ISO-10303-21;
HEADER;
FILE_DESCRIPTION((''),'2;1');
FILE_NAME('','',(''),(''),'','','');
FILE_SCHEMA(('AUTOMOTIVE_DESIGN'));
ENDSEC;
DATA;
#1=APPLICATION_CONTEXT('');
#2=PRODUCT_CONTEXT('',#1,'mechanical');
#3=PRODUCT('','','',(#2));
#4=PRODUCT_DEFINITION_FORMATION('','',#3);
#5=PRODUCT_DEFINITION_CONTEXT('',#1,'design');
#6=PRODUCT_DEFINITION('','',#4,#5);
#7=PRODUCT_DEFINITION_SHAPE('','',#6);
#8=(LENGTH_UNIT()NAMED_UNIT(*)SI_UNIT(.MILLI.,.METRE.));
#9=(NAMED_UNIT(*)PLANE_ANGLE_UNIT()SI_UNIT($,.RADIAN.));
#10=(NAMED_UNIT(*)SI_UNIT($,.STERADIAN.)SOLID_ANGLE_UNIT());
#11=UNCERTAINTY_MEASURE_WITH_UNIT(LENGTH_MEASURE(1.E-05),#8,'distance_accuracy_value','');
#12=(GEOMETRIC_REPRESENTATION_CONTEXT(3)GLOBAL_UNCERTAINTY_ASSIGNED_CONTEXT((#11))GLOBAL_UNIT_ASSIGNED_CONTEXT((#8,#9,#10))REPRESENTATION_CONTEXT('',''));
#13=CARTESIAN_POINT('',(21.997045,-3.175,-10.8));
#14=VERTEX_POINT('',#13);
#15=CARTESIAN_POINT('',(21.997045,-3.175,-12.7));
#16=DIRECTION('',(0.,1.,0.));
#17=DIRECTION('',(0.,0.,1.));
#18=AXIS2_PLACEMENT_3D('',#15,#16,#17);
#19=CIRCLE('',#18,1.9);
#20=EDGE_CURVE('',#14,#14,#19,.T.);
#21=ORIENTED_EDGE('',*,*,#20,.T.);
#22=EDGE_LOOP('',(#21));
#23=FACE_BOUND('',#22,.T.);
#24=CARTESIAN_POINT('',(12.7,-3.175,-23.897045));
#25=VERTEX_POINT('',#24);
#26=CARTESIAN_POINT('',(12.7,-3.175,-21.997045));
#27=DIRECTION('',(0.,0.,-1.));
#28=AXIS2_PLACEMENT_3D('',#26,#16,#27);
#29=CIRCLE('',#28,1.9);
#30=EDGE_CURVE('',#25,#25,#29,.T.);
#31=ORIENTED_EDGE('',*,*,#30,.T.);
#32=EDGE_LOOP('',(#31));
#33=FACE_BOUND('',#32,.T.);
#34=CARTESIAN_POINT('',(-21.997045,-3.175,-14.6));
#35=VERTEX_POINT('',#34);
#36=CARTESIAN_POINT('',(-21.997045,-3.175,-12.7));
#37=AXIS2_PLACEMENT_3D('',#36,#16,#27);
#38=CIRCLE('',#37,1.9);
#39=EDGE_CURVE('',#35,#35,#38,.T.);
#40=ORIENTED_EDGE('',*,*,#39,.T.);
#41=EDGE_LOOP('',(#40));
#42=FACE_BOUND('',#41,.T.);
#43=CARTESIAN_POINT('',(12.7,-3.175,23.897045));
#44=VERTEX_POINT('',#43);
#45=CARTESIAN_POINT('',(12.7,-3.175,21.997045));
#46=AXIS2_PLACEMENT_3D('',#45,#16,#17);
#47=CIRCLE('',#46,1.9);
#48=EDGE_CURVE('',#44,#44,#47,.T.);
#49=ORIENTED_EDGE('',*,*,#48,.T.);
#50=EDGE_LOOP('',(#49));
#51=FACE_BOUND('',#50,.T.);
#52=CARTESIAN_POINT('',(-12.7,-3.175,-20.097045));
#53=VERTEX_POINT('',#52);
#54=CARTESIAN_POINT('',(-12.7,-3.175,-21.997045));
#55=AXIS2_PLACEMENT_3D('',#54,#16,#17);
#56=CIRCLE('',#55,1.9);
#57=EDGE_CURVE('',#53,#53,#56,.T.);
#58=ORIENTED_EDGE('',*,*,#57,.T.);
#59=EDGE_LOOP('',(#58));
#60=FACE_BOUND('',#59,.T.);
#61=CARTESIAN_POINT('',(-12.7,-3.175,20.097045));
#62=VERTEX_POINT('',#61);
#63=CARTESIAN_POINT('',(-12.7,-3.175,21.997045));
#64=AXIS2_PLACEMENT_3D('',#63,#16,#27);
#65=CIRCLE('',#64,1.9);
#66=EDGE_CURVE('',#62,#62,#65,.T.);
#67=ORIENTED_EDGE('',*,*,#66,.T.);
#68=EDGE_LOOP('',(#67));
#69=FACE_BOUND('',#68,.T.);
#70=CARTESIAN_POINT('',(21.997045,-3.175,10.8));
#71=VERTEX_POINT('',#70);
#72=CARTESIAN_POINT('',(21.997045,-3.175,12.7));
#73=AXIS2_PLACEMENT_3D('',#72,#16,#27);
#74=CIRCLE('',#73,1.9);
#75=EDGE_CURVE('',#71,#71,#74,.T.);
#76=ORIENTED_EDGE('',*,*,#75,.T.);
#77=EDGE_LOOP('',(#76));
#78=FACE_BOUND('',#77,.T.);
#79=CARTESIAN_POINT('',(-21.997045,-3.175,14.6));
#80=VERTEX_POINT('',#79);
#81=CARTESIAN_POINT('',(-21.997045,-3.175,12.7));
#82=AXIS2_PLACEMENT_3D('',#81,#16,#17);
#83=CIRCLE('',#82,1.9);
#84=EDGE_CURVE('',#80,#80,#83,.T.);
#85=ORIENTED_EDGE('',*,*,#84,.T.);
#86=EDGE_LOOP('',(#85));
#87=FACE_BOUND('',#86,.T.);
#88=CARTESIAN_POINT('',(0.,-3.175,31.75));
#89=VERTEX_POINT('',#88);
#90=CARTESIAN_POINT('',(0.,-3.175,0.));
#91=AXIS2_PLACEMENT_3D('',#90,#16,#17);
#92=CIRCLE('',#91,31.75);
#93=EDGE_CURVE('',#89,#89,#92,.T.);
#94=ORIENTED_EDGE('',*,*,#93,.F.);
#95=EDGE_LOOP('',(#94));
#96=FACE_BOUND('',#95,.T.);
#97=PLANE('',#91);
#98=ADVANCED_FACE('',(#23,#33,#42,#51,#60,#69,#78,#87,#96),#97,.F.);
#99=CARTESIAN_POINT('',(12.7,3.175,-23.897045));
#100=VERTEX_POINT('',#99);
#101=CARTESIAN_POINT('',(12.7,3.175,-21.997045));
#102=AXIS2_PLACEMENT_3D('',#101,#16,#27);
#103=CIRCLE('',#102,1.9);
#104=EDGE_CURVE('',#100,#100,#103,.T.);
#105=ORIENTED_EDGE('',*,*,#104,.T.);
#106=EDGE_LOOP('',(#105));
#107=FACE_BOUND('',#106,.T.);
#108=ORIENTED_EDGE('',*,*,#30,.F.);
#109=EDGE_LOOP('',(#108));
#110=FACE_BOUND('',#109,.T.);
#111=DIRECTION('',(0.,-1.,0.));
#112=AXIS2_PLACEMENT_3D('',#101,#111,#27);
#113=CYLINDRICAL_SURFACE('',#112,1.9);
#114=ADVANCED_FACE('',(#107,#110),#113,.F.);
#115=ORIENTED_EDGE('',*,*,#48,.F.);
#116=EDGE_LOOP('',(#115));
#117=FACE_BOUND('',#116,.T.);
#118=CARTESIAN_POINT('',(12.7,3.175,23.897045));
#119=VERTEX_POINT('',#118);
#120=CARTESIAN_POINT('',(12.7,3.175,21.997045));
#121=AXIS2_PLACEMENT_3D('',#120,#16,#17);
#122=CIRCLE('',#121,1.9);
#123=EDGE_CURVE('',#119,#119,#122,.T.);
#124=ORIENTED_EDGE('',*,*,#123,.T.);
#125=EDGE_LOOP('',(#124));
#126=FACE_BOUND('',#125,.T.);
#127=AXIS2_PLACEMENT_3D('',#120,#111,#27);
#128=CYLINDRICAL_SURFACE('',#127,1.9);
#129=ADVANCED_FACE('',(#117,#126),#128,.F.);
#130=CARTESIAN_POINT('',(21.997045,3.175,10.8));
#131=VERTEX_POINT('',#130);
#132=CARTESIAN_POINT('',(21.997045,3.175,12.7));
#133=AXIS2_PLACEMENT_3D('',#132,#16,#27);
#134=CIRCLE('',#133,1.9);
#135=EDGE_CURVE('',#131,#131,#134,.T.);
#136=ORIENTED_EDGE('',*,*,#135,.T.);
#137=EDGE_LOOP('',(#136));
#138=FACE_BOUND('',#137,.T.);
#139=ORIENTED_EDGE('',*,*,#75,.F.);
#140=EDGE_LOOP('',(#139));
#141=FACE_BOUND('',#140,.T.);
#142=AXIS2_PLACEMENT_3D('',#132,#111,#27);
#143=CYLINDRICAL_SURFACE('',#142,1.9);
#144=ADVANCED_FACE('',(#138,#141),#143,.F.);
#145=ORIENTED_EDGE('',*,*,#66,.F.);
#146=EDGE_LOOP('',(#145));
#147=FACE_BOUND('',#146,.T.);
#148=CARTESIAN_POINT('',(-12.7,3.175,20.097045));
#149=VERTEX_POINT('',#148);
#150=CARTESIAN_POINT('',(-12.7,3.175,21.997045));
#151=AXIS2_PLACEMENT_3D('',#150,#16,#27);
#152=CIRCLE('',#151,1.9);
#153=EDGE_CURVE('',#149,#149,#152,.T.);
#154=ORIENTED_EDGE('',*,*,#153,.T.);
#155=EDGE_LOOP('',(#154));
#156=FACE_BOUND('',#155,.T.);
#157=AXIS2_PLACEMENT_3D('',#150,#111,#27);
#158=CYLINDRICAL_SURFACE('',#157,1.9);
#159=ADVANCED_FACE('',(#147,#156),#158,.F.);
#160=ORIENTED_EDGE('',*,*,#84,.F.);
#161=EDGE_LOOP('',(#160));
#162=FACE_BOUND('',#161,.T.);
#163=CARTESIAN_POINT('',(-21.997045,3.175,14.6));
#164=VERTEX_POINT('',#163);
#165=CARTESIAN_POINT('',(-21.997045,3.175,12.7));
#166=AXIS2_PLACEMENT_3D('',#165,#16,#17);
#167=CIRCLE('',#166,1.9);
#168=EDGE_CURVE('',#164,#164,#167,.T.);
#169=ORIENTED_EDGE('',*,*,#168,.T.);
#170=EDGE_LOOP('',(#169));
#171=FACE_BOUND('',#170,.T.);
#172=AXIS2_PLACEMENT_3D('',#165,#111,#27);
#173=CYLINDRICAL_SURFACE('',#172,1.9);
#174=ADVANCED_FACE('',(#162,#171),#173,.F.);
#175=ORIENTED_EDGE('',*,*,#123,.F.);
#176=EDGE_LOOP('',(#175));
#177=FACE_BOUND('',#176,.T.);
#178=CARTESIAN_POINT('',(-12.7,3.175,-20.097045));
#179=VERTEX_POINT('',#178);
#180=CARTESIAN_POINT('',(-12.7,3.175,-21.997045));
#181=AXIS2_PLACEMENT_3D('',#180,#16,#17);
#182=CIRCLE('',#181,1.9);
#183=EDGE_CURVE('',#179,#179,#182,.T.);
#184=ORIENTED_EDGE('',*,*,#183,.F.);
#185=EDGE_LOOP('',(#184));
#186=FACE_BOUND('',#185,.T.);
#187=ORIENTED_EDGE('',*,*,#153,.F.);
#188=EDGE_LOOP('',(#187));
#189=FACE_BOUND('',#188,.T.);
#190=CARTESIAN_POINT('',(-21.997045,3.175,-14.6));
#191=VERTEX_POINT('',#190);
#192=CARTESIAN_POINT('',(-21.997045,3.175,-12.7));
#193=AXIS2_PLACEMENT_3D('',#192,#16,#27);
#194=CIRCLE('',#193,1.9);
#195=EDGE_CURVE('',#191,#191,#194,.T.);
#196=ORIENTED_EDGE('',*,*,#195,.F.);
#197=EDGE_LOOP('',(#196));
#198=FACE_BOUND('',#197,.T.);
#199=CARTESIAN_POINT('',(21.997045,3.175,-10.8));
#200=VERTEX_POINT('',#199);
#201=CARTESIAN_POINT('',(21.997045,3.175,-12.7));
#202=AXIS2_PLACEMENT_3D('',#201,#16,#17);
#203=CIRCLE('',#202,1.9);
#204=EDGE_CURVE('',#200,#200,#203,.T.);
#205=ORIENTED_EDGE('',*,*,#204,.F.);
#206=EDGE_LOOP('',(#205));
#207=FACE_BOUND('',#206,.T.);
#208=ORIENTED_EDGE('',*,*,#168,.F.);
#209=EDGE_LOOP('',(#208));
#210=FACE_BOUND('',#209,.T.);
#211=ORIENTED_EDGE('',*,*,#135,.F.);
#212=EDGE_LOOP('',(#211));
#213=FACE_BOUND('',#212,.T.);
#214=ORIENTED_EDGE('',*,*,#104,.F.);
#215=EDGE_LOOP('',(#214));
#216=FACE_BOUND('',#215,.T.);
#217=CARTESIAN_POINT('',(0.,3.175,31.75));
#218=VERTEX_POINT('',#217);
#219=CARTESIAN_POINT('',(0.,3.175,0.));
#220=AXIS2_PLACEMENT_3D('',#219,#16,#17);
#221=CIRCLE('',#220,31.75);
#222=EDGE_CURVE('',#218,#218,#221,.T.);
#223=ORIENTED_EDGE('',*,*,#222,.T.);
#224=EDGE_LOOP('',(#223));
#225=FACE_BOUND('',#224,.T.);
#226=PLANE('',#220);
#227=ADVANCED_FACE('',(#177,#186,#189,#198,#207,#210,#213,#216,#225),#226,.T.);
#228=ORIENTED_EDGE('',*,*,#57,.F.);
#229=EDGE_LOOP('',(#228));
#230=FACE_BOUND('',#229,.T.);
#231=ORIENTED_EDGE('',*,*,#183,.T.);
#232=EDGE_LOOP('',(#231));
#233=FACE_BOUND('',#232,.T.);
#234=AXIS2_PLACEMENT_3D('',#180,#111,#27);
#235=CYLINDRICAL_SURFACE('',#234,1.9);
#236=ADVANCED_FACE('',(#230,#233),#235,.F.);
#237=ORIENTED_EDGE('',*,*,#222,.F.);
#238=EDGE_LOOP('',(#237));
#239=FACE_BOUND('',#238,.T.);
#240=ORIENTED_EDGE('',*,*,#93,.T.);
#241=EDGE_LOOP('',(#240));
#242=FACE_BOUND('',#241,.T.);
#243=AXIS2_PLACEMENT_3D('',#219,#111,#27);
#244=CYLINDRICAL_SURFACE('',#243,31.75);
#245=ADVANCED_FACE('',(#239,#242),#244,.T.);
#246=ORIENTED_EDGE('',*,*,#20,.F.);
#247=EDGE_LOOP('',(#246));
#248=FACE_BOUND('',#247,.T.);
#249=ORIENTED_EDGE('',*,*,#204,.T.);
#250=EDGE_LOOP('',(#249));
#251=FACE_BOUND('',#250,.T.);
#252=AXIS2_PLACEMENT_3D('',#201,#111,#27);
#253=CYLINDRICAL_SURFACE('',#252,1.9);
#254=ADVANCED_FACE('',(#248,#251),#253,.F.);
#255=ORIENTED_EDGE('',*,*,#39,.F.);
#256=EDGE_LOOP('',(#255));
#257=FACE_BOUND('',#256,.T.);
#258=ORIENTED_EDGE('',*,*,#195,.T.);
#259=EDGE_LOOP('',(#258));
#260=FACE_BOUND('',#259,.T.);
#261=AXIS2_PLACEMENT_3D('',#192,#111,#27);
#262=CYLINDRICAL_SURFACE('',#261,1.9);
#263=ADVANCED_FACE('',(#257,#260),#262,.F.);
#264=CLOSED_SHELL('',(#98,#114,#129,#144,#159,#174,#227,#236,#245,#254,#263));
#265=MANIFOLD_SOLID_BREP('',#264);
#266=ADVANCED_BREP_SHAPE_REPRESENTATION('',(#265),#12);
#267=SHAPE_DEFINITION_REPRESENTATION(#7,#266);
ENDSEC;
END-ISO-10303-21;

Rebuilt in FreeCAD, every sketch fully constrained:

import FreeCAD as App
import Part
import Sketcher

V = App.Vector
Q = App.Units.Quantity

doc = App.newDocument("Part")
body = doc.addObject("PartDesign::Body", "Body")

sketch1 = body.newObject("Sketcher::SketchObject", "Sketch")
sketch1.AttachmentSupport = (doc.getObject("XZ_Plane"), [""])
sketch1.MapMode = "FlatFace"
sketch1.addGeometry(Part.Circle(V(0, 0, 0), V(0, 0, 1), 31.8), False)
sketch1.addGeometry(Part.Circle(V(-12.7, 22, 0), V(0, 0, 1), 1.9), False)
sketch1.addGeometry(Part.Circle(V(-22, 12.7, 0), V(0, 0, 1), 1.9), False)
sketch1.addGeometry(Part.Circle(V(12.7, 22, 0), V(0, 0, 1), 1.9), False)
sketch1.addGeometry(Part.Circle(V(22, 12.7, 0), V(0, 0, 1), 1.9), False)
sketch1.addGeometry(Part.Circle(V(-22, -12.7, 0), V(0, 0, 1), 1.9), False)
sketch1.addGeometry(Part.Circle(V(-12.7, -22, 0), V(0, 0, 1), 1.9), False)
sketch1.addGeometry(Part.Circle(V(22, -12.7, 0), V(0, 0, 1), 1.9), False)
sketch1.addGeometry(Part.Circle(V(12.7, -22, 0), V(0, 0, 1), 1.9), False)
sketch1.addConstraint(Sketcher.Constraint("Coincident", 0, 3, -1, 1))
sketch1.addConstraint(Sketcher.Constraint("Equal", 1, 2))
sketch1.addConstraint(Sketcher.Constraint("Equal", 2, 3))
sketch1.addConstraint(Sketcher.Constraint("Equal", 3, 4))
sketch1.addConstraint(Sketcher.Constraint("Equal", 4, 5))
sketch1.addConstraint(Sketcher.Constraint("Equal", 5, 6))
sketch1.addConstraint(Sketcher.Constraint("Equal", 6, 7))
sketch1.addConstraint(Sketcher.Constraint("Equal", 7, 8))
sketch1.addConstraint(Sketcher.Constraint("Symmetric", 4, 3, 5, 3, -1, 1))
sketch1.addConstraint(Sketcher.Constraint("Symmetric", 3, 3, 6, 3, -1, 1))
sketch1.addConstraint(Sketcher.Constraint("Symmetric", 2, 3, 7, 3, -1, 1))
sketch1.addConstraint(Sketcher.Constraint("Symmetric", 1, 3, 8, 3, -1, 1))
sketch1.addConstraint(Sketcher.Constraint("Symmetric", 1, 3, 3, 3, -2))
sketch1.addConstraint(Sketcher.Constraint("Symmetric", 2, 3, 4, 3, -2))
sketch1.addConstraint(Sketcher.Constraint("Diameter", 0, Q("2.5 in")))
sketch1.addConstraint(Sketcher.Constraint("DistanceX", 1, 3, 3, 3, Q("1 in")))
sketch1.addConstraint(Sketcher.Constraint("DistanceY", 5, 3, 2, 3, Q("1 in")))
sketch1.addConstraint(Sketcher.Constraint("Diameter", 1, Q("3.8 mm")))
sketch1.addConstraint(Sketcher.Constraint("DistanceX", 2, 3, 4, 3, Q("43.994091 mm")))
sketch1.addConstraint(Sketcher.Constraint("DistanceY", 6, 3, 1, 3, Q("43.994091 mm")))
pad1 = body.newObject("PartDesign::Pad", "Pad")
pad1.Profile = sketch1
pad1.Length = Q("0.25 in")
pad1.Midplane = True

doc.recompute()
